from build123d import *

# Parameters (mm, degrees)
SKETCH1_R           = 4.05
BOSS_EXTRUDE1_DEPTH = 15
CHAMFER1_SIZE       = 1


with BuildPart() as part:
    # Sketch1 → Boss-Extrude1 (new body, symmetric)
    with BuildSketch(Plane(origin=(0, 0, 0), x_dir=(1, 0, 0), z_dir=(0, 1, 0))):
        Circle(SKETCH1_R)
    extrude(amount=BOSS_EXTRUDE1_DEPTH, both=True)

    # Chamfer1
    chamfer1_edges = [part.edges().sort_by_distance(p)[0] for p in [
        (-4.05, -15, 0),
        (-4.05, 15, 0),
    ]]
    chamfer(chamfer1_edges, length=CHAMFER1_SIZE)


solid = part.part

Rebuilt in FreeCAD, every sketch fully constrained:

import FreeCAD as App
import Part
import Sketcher
Q = App.Units.Quantity


def edges_at(feature, points):
    """Names of the edges that pass closest to the given points."""
    edges = feature.Shape.Edges
    near = lambda p: min(range(len(edges)), key=lambda i: edges[i].distToShape(Part.Vertex(*p))[0])
    return sorted({f"Edge{near(p) + 1}" for p in points})

doc = App.newDocument("Part")
body = doc.addObject("PartDesign::Body", "Body")

sketch1 = body.newObject("Sketcher::SketchObject", "Sketch")
sketch1.AttachmentSupport = (doc.getObject("XZ_Plane"), [""])
sketch1.MapMode = "FlatFace"
sketch1.addGeometry(Part.Circle(App.Vector(0, 0, 0), App.Vector(0, 0, 1), 4), False)
sketch1.addConstraint(Sketcher.Constraint("Coincident", 0, 3, -1, 1))
sketch1.addConstraint(Sketcher.Constraint("Diameter", 0, Q("8.1 mm")))
pad1 = body.newObject("PartDesign::Pad", "Pad")
pad1.Profile = sketch1
pad1.Length = 30
pad1.Midplane = True
doc.recompute()

chamfer = body.newObject("PartDesign::Chamfer", "Chamfer")
chamfer.Base = (pad1, edges_at(pad1, [(-4.05, -15, 0), (-4.05, 15, 0)]))
chamfer.Size = 1

doc.recompute()
